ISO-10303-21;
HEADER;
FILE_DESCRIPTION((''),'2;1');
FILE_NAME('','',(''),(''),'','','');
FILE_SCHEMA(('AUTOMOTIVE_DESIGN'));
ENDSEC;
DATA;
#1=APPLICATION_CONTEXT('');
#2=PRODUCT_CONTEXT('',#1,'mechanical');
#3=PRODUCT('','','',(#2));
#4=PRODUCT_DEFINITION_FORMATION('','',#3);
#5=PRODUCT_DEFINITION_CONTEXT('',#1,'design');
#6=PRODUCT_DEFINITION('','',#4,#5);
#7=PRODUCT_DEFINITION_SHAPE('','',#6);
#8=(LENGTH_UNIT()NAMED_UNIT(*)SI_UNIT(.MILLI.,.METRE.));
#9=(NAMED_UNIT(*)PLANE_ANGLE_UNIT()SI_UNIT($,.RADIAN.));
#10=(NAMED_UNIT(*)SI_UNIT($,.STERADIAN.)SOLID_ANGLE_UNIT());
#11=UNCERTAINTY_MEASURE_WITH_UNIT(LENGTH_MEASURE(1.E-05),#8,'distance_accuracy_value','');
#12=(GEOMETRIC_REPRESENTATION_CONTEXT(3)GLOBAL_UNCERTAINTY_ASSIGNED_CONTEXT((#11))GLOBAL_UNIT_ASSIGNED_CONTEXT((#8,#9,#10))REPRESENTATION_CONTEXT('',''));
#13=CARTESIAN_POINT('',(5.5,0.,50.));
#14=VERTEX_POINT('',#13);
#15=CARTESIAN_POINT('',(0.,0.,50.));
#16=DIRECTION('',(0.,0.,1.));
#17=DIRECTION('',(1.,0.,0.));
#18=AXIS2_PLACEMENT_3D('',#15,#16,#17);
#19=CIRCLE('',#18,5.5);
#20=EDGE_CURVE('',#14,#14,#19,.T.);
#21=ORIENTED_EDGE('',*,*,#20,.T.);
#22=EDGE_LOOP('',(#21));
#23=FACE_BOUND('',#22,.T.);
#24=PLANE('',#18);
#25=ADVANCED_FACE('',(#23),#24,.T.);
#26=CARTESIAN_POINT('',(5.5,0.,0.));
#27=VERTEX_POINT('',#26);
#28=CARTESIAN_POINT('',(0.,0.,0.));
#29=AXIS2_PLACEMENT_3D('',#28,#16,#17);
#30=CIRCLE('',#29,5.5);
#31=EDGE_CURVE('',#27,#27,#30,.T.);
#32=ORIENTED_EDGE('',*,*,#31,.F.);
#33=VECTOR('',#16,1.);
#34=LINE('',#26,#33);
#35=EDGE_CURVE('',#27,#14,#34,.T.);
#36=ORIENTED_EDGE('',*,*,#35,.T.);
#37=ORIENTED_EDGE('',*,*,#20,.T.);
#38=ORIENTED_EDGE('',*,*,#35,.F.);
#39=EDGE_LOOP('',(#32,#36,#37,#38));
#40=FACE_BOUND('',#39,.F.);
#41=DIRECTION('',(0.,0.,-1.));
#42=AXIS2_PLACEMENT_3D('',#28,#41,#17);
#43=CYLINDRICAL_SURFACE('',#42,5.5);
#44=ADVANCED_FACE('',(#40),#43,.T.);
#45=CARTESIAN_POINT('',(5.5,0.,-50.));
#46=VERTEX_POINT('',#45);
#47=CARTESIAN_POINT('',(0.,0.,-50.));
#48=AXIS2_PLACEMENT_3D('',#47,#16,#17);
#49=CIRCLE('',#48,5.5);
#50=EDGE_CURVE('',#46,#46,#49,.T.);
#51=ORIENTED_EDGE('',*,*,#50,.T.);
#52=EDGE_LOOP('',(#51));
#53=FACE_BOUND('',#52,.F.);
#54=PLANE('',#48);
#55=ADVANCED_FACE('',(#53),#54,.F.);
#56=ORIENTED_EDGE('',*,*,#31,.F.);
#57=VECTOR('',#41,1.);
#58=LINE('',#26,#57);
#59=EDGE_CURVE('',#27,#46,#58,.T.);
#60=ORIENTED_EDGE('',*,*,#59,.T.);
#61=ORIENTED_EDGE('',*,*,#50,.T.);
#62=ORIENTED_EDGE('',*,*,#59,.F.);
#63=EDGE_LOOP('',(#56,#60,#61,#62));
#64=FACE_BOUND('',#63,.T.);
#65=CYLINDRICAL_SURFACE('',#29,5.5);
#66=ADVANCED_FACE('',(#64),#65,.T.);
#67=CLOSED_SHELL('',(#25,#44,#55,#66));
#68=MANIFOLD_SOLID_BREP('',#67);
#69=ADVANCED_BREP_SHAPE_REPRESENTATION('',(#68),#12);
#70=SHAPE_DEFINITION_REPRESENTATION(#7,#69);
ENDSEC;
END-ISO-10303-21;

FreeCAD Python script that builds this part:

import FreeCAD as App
import Part
import Sketcher
from FreeCAD import Vector

doc = App.newDocument("Part")
body = doc.addObject("PartDesign::Body", "Body")

sketch1 = body.newObject("Sketcher::SketchObject", "Sketch")
sketch1.AttachmentSupport = (doc.getObject("XY_Plane"), [""])
sketch1.MapMode = "FlatFace"
sketch1.addGeometry(Part.Circle(Vector(0, 0, 0), Vector(0, 0, 1), 5.5), False)
sketch1.addConstraint(Sketcher.Constraint("Coincident", 0, 3, -1, 1))
sketch1.addConstraint(Sketcher.Constraint("Diameter", 0, 11.0))
pad1 = body.newObject("PartDesign::Pad", "Pad")
pad1.Profile = sketch1
pad1.Length = 100
pad1.Midplane = True

doc.recompute()
